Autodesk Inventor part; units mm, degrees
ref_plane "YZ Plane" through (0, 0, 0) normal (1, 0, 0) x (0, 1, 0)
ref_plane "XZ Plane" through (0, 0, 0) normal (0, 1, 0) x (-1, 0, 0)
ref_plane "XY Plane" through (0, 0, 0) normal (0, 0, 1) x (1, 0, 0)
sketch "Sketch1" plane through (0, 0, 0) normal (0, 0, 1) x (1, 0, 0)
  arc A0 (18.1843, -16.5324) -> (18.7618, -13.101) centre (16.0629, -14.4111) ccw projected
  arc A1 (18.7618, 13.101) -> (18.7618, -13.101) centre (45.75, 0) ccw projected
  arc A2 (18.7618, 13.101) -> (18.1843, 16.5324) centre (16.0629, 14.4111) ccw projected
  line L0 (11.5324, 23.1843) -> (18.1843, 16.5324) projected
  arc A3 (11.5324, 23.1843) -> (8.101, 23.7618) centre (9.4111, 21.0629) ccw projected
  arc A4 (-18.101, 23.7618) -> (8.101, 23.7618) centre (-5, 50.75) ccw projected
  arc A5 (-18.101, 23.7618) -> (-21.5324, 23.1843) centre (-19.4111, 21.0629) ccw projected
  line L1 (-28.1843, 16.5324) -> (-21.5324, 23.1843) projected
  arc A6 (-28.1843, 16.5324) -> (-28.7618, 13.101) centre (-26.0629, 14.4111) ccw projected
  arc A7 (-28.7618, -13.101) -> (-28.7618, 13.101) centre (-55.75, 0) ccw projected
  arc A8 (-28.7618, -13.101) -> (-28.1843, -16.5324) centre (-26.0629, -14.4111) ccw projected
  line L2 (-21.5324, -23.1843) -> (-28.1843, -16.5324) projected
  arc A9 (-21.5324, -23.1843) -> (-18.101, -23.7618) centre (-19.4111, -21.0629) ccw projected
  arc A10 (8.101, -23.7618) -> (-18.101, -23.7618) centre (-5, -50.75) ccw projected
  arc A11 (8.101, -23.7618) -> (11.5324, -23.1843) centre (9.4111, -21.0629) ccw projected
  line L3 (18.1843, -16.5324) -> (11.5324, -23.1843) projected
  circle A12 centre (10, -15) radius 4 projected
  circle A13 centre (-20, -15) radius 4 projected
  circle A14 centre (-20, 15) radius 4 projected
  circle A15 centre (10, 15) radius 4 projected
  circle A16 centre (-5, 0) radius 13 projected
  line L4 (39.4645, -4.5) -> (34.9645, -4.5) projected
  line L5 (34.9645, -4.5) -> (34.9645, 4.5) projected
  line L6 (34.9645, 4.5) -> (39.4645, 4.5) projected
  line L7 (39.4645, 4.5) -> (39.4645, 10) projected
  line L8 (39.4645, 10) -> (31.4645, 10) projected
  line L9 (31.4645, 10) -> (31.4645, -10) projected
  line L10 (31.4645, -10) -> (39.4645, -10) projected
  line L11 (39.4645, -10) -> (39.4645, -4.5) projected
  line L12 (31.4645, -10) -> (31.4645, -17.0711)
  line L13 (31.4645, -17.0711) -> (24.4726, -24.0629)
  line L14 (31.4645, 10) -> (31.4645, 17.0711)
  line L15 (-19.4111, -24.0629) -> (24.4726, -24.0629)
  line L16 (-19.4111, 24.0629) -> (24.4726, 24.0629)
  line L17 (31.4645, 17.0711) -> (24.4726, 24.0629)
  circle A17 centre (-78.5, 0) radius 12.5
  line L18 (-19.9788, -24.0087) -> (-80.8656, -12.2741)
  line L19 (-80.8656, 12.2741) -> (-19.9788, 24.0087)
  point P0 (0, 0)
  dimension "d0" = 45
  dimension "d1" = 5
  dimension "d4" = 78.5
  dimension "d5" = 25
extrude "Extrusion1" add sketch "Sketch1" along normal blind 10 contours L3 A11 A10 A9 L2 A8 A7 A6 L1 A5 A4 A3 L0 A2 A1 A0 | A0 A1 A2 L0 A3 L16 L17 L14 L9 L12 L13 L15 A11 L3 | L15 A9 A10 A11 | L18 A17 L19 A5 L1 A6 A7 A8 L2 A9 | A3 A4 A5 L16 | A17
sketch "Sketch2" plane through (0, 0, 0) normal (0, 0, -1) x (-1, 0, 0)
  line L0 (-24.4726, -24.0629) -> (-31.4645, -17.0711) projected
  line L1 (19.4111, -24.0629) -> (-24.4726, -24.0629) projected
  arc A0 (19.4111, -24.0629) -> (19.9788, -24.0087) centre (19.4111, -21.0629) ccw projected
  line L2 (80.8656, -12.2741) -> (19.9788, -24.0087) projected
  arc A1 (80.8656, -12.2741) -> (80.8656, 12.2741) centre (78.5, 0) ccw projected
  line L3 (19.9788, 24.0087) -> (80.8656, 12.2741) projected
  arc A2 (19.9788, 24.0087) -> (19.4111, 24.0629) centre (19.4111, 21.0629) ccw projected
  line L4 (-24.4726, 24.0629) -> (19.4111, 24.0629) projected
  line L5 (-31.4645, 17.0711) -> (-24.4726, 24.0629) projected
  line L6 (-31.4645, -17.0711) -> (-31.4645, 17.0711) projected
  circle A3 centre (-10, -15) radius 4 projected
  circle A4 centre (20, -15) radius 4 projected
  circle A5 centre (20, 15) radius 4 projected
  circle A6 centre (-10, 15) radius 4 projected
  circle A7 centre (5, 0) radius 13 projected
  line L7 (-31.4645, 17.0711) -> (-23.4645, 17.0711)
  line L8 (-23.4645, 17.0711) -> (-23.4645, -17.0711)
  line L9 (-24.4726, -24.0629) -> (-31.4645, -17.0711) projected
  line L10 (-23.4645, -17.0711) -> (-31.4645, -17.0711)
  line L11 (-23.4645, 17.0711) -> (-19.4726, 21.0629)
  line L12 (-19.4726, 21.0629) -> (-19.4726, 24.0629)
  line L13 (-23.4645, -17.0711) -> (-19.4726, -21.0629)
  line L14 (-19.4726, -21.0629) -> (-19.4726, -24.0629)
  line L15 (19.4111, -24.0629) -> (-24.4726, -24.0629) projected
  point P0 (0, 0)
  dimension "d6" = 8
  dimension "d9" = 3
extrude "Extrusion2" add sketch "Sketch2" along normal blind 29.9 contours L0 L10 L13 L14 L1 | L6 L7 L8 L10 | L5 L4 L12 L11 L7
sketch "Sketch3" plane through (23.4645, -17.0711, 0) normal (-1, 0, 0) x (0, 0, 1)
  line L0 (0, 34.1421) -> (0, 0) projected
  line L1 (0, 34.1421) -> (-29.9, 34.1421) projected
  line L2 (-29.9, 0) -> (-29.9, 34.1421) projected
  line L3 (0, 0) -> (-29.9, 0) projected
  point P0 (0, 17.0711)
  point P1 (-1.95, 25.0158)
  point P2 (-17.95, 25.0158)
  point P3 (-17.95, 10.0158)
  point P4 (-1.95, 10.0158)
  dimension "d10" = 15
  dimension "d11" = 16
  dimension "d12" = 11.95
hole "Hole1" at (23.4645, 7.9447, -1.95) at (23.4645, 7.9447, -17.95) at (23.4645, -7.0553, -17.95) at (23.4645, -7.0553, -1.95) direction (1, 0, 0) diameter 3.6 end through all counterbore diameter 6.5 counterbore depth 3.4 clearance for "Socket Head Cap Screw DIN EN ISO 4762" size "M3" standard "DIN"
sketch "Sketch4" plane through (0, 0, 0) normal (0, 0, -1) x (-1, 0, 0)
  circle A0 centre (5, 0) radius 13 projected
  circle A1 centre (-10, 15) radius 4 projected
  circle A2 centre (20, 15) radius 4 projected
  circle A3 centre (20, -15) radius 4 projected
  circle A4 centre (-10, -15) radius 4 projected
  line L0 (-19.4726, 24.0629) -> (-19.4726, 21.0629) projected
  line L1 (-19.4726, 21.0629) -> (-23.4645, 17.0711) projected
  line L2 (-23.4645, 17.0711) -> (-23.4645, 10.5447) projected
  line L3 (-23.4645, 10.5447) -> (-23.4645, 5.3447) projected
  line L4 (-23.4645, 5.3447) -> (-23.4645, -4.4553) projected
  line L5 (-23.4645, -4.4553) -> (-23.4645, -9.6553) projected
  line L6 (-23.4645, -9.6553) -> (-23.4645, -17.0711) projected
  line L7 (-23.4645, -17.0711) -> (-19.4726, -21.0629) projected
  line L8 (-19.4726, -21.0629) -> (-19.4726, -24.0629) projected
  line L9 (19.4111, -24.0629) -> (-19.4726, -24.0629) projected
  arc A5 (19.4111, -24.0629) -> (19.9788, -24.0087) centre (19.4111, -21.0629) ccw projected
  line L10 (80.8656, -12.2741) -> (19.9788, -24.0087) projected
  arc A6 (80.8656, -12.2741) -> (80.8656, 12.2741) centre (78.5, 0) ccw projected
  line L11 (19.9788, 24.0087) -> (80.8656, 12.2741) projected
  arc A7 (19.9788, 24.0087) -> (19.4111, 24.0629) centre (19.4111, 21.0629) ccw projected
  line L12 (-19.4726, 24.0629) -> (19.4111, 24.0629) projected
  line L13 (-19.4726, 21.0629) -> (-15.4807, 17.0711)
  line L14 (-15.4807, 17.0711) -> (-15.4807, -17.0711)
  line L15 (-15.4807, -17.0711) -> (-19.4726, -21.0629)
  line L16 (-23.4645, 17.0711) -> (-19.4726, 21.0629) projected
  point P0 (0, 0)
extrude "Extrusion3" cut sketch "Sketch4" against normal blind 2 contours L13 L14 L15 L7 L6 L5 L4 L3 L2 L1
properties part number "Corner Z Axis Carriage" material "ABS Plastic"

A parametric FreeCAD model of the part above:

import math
import FreeCAD as App
import Part
import Sketcher

V = App.Vector
Q = App.Units.Quantity


def add_polygon(sketch, points):
    """Adds a closed chain of lines whose ends are joined by coincident constraints."""
    first, n = sketch.GeometryCount, len(points)
    for a, b in zip(points, points[1:] + points[:1]):
        sketch.addGeometry(Part.LineSegment(App.Vector(*a, 0), App.Vector(*b, 0)), False)
    for i in range(n):
        sketch.addConstraint(Sketcher.Constraint("Coincident", first + i, 2, first + (i + 1) % n, 1))

doc = App.newDocument("Part")
body = doc.addObject("PartDesign::Body", "Body")

# Sketch on XY plane
sketch1 = body.newObject("Sketcher::SketchObject", "Sketch")
sketch1.AttachmentSupport = (doc.getObject("XY_Plane"), [""])
sketch1.MapMode = "FlatFace"
sketch1.addGeometry([
    Part.ArcOfCircle(Part.Circle(V(-19.4, -21.1, 0), V(0, 0, 1), 3), math.radians(-100.91), math.radians(-90)),  # 0
    Part.LineSegment(V(-19.4, -24.1, 0), V(24.5, -24.1, 0)),  # 1
    Part.LineSegment(V(24.5, -24.1, 0), V(31.5, -17.1, 0)),  # 2
    Part.LineSegment(V(31.5, -17.1, 0), V(31.5, 17.1, 0)),  # 3
    Part.LineSegment(V(31.5, 17.1, 0), V(24.5, 24.1, 0)),  # 4
    Part.LineSegment(V(24.5, 24.1, 0), V(-19.4, 24.1, 0)),  # 5
    Part.ArcOfCircle(Part.Circle(V(-19.4, 21.1, 0), V(0, 0, 1), 3), math.radians(90), math.radians(100.91)),  # 6
    Part.LineSegment(V(-20, 24, 0), V(-80.9, 12.3, 0)),  # 7
    Part.ArcOfCircle(Part.Circle(V(-78.5, 0, 0), V(0, 0, 1), 12.5), math.radians(101), math.radians(259)),  # 8
    Part.LineSegment(V(-80.9, -12.3, 0), V(-20, -24, 0)),  # 9
    Part.Circle(V(-20, -15, 0), V(0, 0, 1), 4),  # 10
    Part.Circle(V(10, -15, 0), V(0, 0, 1), 4),  # 11
    Part.Circle(V(-5, 0, 0), V(0, 0, 1), 13),  # 12
    Part.Circle(V(-20, 15, 0), V(0, 0, 1), 4),  # 13
    Part.Circle(V(10, 15, 0), V(0, 0, 1), 4),  # 14
], False)
sketch1.addConstraint([
    Sketcher.Constraint("Tangent", 0, 2, 1, 1),
    Sketcher.Constraint("Coincident", 1, 2, 2, 1),
    Sketcher.Constraint("Coincident", 2, 2, 3, 1),
    Sketcher.Constraint("Coincident", 3, 2, 4, 1),
    Sketcher.Constraint("Coincident", 4, 2, 5, 1),
    Sketcher.Constraint("Tangent", 5, 2, 6, 1),
    Sketcher.Constraint("Tangent", 6, 2, 7, 1),
    Sketcher.Constraint("Tangent", 7, 2, 8, 1),
    Sketcher.Constraint("Tangent", 8, 2, 9, 1),
    Sketcher.Constraint("Tangent", 9, 2, 0, 1),
    Sketcher.Constraint("Horizontal", 1),
    Sketcher.Constraint("Vertical", 3),
    Sketcher.Constraint("Horizontal", 5),
    Sketcher.Constraint("Equal", 0, 6),
    Sketcher.Constraint("Equal", 10, 11),
    Sketcher.Constraint("Equal", 11, 13),
    Sketcher.Constraint("Equal", 13, 14),
    Sketcher.Constraint("Symmetric", 0, 3, 6, 3, -1),
    Sketcher.Constraint("Symmetric", 10, 3, 13, 3, -1),
    Sketcher.Constraint("Symmetric", 11, 3, 14, 3, -1),
    Sketcher.Constraint("PointOnObject", 8, 3, -1),
    Sketcher.Constraint("PointOnObject", 12, 3, -1),
    Sketcher.Constraint("Perpendicular", 2, 4),
    Sketcher.Constraint("Horizontal", 10, 3, 11, 3),
    Sketcher.Constraint("Vertical", 1, 2, 4, 2),
    Sketcher.Constraint("Equal", 2, 4),
    Sketcher.Constraint("Radius", 8, Q("12.5 mm")),
    Sketcher.Constraint("Diameter", 10, Q("8 mm")),
    Sketcher.Constraint("Diameter", 12, Q("26 mm")),
    Sketcher.Constraint("DistanceX", 12, 3, -1, 1, Q("5 mm")),
    Sketcher.Constraint("Radius", 0, Q("3 mm")),
    Sketcher.Constraint("DistanceX", 8, 3, -1, 1, Q("78.5 mm")),
    Sketcher.Constraint("DistanceX", 10, 3, -1, 1, Q("20 mm")),
    Sketcher.Constraint("DistanceY", 10, 3, -1, 1, Q("15 mm")),
    Sketcher.Constraint("DistanceX", -1, 1, 11, 3, Q("10 mm")),
    Sketcher.Constraint("Distance", 2, Q("9.888 mm")),
    Sketcher.Constraint("DistanceX", 1, 1, 1, 2, Q("43.8837 mm")),
    Sketcher.Constraint("DistanceY", 3, 1, 3, 2, Q("34.1422 mm")),
    Sketcher.Constraint("DistanceX", 0, 3, -1, 1, Q("19.411 mm")),
])
pad1 = body.newObject("PartDesign::Pad", "Pad")
pad1.Profile = sketch1
pad1.Length = 10

# Sketch on XY plane
sketch2 = body.newObject("Sketcher::SketchObject", "Sketch001")
sketch2.AttachmentSupport = (doc.getObject("XY_Plane"), [""])
sketch2.MapMode = "FlatFace"
add_polygon(sketch2, [(31.5, -17.1), (24.5, -24.1), (19.5, -24.1), (19.5, -21.1), (23.5, -17.1), (23.5, 17.1), (19.5, 21.1), (19.5, 24.1), (24.5, 24.1), (31.5, 17.1)])  # lines 0-9
sketch2.addConstraint([
    Sketcher.Constraint("Horizontal", 1),
    Sketcher.Constraint("Vertical", 2),
    Sketcher.Constraint("Vertical", 4),
    Sketcher.Constraint("Vertical", 6),
    Sketcher.Constraint("Horizontal", 7),
    Sketcher.Constraint("Vertical", 9),
    Sketcher.Constraint("Symmetric", 2, 2, 5, 2, -1),
    Sketcher.Constraint("Symmetric", 0, 2, 7, 2, -1),
    Sketcher.Constraint("Parallel", 0, 3),
    Sketcher.Constraint("Perpendicular", 3, 5),
    Sketcher.Constraint("Parallel", 5, 8),
    Sketcher.Constraint("Horizontal", 4, 2, 8, 2),
    Sketcher.Constraint("Horizontal", 3, 2, 9, 2),
    Sketcher.Constraint("DistanceY", 2, 1, 2, 2, Q("3 mm")),
    Sketcher.Constraint("DistanceX", 4, 2, 8, 2, Q("8 mm")),
    Sketcher.Constraint("Distance", 0, Q("9.888 mm")),
    Sketcher.Constraint("DistanceY", 4, 1, 4, 2, Q("34.1422 mm")),
    Sketcher.Constraint("DistanceX", -1, 1, 0, 2, Q("24.4726 mm")),
])
pad2 = body.newObject("PartDesign::Pad", "Pad001")
pad2.Profile = sketch2
pad2.Length = 29.9
pad2.Reversed = True

# Sketch on YZ plane
sketch3 = body.newObject("Sketcher::SketchObject", "Sketch002")
sketch3.AttachmentSupport = (doc.getObject("YZ_Plane"), [""])
sketch3.MapMode = "FlatFace"
sketch3.AttachmentOffset = App.Placement(V(0, 0, 23.4645), App.Rotation())
sketch3.addGeometry([
    Part.Circle(V(7.9, -1.9, 0), V(0, 0, 1), 1.8),
    Part.Circle(V(7.9, -17.9, 0), V(0, 0, 1), 1.8),
    Part.Circle(V(-7.1, -17.9, 0), V(0, 0, 1), 1.8),
    Part.Circle(V(-7.1, -1.9, 0), V(0, 0, 1), 1.8),
], False)
sketch3.addConstraint([
    Sketcher.Constraint("Equal", 0, 1),
    Sketcher.Constraint("Equal", 1, 2),
    Sketcher.Constraint("Equal", 2, 3),
    Sketcher.Constraint("Horizontal", 1, 3, 2, 3),
    Sketcher.Constraint("Horizontal", 0, 3, 3, 3),
    Sketcher.Constraint("Vertical", 0, 3, 1, 3),
    Sketcher.Constraint("Vertical", 2, 3, 3, 3),
    Sketcher.Constraint("Diameter", 0, Q("3.6 mm")),
    Sketcher.Constraint("DistanceY", 1, 3, 0, 3, Q("16 mm")),
    Sketcher.Constraint("DistanceX", 2, 3, 1, 3, Q("15 mm")),
    Sketcher.Constraint("DistanceY", 0, 3, -1, 1, Q("1.95 mm")),
    Sketcher.Constraint("DistanceX", -1, 1, 0, 3, Q("7.9447 mm")),
])
doc.recompute()
hole = body.newObject("PartDesign::Hole", "Hole")
hole.Profile = sketch3
hole.ThreadType = "None"
hole.Diameter = 3.6
hole.DepthType = "ThroughAll"
hole.HoleCutType = "Counterbore"
hole.HoleCutDiameter = 6.5
hole.HoleCutDepth = 3.4
hole.Reversed = True

# Sketch on XY plane
sketch4 = body.newObject("Sketcher::SketchObject", "Sketch003")
sketch4.AttachmentSupport = (doc.getObject("XY_Plane"), [""])
sketch4.MapMode = "FlatFace"
add_polygon(sketch4, [(15, 17), (19, 21), (23, 17), (23, -17), (19, -21), (15, -17)])  # lines 0-5
sketch4.addConstraint([
    Sketcher.Constraint("Vertical", 2),
    Sketcher.Constraint("Vertical", 5),
    Sketcher.Constraint("Symmetric", 0, 2, 3, 2, -1),
    Sketcher.Constraint("Perpendicular", 0, 1),
    Sketcher.Constraint("Perpendicular", 1, 3),
    Sketcher.Constraint("Perpendicular", 3, 4),
    Sketcher.Constraint("Horizontal", 2, 2, 4, 2),
    Sketcher.Constraint("Horizontal", 1, 2, 5, 2),
    Sketcher.Constraint("DistanceY", 2, 2, 2, 1, Q("34.1422 mm")),
    Sketcher.Constraint("DistanceY", -1, 1, 0, 2, Q("21.063 mm")),
    Sketcher.Constraint("DistanceX", -1, 1, 0, 2, Q("19.4726 mm")),
])
pocket1 = body.newObject("PartDesign::Pocket", "Pocket")
pocket1.Profile = sketch4
pocket1.Length = 2
pocket1.Reversed = True

doc.recompute()
